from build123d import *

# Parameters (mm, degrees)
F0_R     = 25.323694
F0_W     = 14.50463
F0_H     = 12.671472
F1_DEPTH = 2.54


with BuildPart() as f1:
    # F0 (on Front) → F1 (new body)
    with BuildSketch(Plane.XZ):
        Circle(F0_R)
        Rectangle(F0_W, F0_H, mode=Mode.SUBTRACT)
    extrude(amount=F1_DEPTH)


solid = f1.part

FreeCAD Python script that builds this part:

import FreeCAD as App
import Part
import Sketcher
Q = App.Units.Quantity


def add_polygon(sketch, points):
    """Adds a closed chain of lines whose ends are joined by coincident constraints."""
    first, n = sketch.GeometryCount, len(points)
    for a, b in zip(points, points[1:] + points[:1]):
        sketch.addGeometry(Part.LineSegment(App.Vector(*a, 0), App.Vector(*b, 0)), False)
    for i in range(n):
        sketch.addConstraint(Sketcher.Constraint("Coincident", first + i, 2, first + (i + 1) % n, 1))

doc = App.newDocument("Part")
body = doc.addObject("PartDesign::Body", "Body")

sketch1 = body.newObject("Sketcher::SketchObject", "Sketch")
sketch1.AttachmentSupport = (doc.getObject("XZ_Plane"), [""])
sketch1.MapMode = "FlatFace"
sketch1.addGeometry(Part.Circle(App.Vector(0, 0, 0), App.Vector(0, 0, 1), 25), False)
add_polygon(sketch1, [(7, -6), (-7, -6), (-7, 6), (7, 6)])
sketch1.addConstraint(Sketcher.Constraint("Horizontal", 1))
sketch1.addConstraint(Sketcher.Constraint("Vertical", 2))
sketch1.addConstraint(Sketcher.Constraint("Horizontal", 3))
sketch1.addConstraint(Sketcher.Constraint("Vertical", 4))
sketch1.addConstraint(Sketcher.Constraint("Coincident", 0, 3, -1, 1))
sketch1.addConstraint(Sketcher.Constraint("Symmetric", 1, 2, 3, 2, -1, 1))
sketch1.addConstraint(Sketcher.Constraint("Diameter", 0, 50.647388))
sketch1.addConstraint(Sketcher.Constraint("DistanceX", 1, 2, 1, 1, 14.50463))
sketch1.addConstraint(Sketcher.Constraint("DistanceY", 2, 1, 2, 2, 12.671472))
pad1 = body.newObject("PartDesign::Pad", "Pad")
pad1.Profile = sketch1
pad1.Length = Q("0.1 in")

doc.recompute()
